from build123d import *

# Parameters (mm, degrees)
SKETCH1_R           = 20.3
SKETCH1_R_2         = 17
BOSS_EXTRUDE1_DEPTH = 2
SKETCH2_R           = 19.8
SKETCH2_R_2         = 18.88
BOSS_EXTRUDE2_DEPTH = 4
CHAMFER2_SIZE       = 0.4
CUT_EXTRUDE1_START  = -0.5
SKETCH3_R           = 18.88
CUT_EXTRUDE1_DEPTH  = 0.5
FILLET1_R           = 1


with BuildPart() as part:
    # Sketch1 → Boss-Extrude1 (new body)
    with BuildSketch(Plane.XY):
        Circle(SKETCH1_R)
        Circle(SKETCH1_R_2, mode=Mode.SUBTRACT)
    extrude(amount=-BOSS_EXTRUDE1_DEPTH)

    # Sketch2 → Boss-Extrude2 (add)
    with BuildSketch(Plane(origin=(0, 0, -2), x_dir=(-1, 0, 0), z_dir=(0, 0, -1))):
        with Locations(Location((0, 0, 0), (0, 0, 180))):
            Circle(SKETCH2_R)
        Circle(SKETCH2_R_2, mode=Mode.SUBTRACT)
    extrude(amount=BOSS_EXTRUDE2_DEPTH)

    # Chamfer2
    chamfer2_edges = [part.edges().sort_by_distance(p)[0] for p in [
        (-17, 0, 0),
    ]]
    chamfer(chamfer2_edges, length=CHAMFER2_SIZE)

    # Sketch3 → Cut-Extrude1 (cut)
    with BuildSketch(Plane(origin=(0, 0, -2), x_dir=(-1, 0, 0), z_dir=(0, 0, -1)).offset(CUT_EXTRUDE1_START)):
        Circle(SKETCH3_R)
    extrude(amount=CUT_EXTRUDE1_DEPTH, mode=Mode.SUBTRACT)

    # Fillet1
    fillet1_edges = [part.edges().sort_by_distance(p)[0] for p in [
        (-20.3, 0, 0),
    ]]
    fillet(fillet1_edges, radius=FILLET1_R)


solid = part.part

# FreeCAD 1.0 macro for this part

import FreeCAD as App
import Part
import Sketcher

V = App.Vector
Q = App.Units.Quantity


def edges_at(feature, points):
    """Names of the edges that pass closest to the given points."""
    edges = feature.Shape.Edges
    near = lambda p: min(range(len(edges)), key=lambda i: edges[i].distToShape(Part.Vertex(*p))[0])
    return sorted({f"Edge{near(p) + 1}" for p in points})

doc = App.newDocument("Part")
params = doc.addObject("Spreadsheet::Sheet", "Params")
for row, (alias, value) in enumerate([
    ("sketch1_diameter", "34 mm"),
    ("sketch1_diameter2", "40.6 mm"),
    ("pad1_length", "2 mm"),
    ("sketch2_diameter", "39.6 mm"),
    ("sketch2_diameter2", "37.76 mm"),
    ("pad2_length", "4 mm"),
    ("chamfer_size", "0.4 mm"),
    ("sketch3_diameter", "37.76 mm"),
    ("pocket1_length", "0.5 mm"),
    ("fillet_radius", "1 mm"),
], start=1):
    params.set(f"A{row}", alias)
    params.set(f"B{row}", "=" + value)
    params.setAlias(f"B{row}", alias)

body = doc.addObject("PartDesign::Body", "Body")

# Sketch on XY plane
sketch1 = body.newObject("Sketcher::SketchObject", "Sketch")
sketch1.AttachmentSupport = (doc.getObject("XY_Plane"), [""])
sketch1.MapMode = "FlatFace"
sketch1.addGeometry([
    Part.Circle(V(0, 0, 0), V(0, 0, 1), 20),
    Part.Circle(V(0, 0, 0), V(0, 0, 1), 17),
], False)
sketch1.addConstraint([
    Sketcher.Constraint("Coincident", 0, 3, -1, 1),
    Sketcher.Constraint("Coincident", 1, 3, -1, 1),
    Sketcher.Constraint("Diameter", 1, Q("34 mm")),
    Sketcher.Constraint("Diameter", 0, Q("40.6 mm")),
])
sketch1.setExpression("Constraints[2]", "Params.sketch1_diameter")
sketch1.setExpression("Constraints[3]", "Params.sketch1_diameter2")
pad1 = body.newObject("PartDesign::Pad", "Pad")
pad1.Profile = sketch1
pad1.setExpression("Length", "Params.pad1_length")
pad1.Reversed = True

# Sketch on XY plane
sketch2 = body.newObject("Sketcher::SketchObject", "Sketch001")
sketch2.AttachmentSupport = (doc.getObject("XY_Plane"), [""])
sketch2.MapMode = "FlatFace"
sketch2.AttachmentOffset = App.Placement(V(0, 0, -2), App.Rotation())
sketch2.addGeometry([
    Part.Circle(V(0, 0, 0), V(0, 0, 1), 20),
    Part.Circle(V(0, 0, 0), V(0, 0, 1), 19),
], False)
sketch2.addConstraint([
    Sketcher.Constraint("Coincident", 0, 3, -1, 1),
    Sketcher.Constraint("Coincident", 1, 3, -1, 1),
    Sketcher.Constraint("Diameter", 0, Q("39.6 mm")),
    Sketcher.Constraint("Diameter", 1, Q("37.76 mm")),
])
sketch2.setExpression("Constraints[2]", "Params.sketch2_diameter")
sketch2.setExpression("Constraints[3]", "Params.sketch2_diameter2")
pad2 = body.newObject("PartDesign::Pad", "Pad001")
pad2.Profile = sketch2
pad2.setExpression("Length", "Params.pad2_length")
pad2.Reversed = True
doc.recompute()

chamfer = body.newObject("PartDesign::Chamfer", "Chamfer")
chamfer.Base = (pad2, edges_at(pad2, [(-17, 0, 0)]))
chamfer.setExpression("Size", "Params.chamfer_size")

# Sketch on XY plane
sketch3 = body.newObject("Sketcher::SketchObject", "Sketch002")
sketch3.AttachmentSupport = (doc.getObject("XY_Plane"), [""])
sketch3.MapMode = "FlatFace"
sketch3.AttachmentOffset = App.Placement(V(0, 0, -1.5), App.Rotation())
sketch3.addGeometry(Part.Circle(V(0, 0, 0), V(0, 0, 1), 19), False)
sketch3.addConstraint([
    Sketcher.Constraint("Coincident", 0, 3, -1, 1),
    Sketcher.Constraint("Diameter", 0, Q("37.76 mm")),
])
sketch3.setExpression("Constraints[1]", "Params.sketch3_diameter")
pocket1 = body.newObject("PartDesign::Pocket", "Pocket")
pocket1.Profile = sketch3
pocket1.setExpression("Length", "Params.pocket1_length")
doc.recompute()

fillet = body.newObject("PartDesign::Fillet", "Fillet")
fillet.Base = (pocket1, edges_at(pocket1, [(-20.3, 0, 0)]))
fillet.setExpression("Radius", "Params.fillet_radius")

doc.recompute()
